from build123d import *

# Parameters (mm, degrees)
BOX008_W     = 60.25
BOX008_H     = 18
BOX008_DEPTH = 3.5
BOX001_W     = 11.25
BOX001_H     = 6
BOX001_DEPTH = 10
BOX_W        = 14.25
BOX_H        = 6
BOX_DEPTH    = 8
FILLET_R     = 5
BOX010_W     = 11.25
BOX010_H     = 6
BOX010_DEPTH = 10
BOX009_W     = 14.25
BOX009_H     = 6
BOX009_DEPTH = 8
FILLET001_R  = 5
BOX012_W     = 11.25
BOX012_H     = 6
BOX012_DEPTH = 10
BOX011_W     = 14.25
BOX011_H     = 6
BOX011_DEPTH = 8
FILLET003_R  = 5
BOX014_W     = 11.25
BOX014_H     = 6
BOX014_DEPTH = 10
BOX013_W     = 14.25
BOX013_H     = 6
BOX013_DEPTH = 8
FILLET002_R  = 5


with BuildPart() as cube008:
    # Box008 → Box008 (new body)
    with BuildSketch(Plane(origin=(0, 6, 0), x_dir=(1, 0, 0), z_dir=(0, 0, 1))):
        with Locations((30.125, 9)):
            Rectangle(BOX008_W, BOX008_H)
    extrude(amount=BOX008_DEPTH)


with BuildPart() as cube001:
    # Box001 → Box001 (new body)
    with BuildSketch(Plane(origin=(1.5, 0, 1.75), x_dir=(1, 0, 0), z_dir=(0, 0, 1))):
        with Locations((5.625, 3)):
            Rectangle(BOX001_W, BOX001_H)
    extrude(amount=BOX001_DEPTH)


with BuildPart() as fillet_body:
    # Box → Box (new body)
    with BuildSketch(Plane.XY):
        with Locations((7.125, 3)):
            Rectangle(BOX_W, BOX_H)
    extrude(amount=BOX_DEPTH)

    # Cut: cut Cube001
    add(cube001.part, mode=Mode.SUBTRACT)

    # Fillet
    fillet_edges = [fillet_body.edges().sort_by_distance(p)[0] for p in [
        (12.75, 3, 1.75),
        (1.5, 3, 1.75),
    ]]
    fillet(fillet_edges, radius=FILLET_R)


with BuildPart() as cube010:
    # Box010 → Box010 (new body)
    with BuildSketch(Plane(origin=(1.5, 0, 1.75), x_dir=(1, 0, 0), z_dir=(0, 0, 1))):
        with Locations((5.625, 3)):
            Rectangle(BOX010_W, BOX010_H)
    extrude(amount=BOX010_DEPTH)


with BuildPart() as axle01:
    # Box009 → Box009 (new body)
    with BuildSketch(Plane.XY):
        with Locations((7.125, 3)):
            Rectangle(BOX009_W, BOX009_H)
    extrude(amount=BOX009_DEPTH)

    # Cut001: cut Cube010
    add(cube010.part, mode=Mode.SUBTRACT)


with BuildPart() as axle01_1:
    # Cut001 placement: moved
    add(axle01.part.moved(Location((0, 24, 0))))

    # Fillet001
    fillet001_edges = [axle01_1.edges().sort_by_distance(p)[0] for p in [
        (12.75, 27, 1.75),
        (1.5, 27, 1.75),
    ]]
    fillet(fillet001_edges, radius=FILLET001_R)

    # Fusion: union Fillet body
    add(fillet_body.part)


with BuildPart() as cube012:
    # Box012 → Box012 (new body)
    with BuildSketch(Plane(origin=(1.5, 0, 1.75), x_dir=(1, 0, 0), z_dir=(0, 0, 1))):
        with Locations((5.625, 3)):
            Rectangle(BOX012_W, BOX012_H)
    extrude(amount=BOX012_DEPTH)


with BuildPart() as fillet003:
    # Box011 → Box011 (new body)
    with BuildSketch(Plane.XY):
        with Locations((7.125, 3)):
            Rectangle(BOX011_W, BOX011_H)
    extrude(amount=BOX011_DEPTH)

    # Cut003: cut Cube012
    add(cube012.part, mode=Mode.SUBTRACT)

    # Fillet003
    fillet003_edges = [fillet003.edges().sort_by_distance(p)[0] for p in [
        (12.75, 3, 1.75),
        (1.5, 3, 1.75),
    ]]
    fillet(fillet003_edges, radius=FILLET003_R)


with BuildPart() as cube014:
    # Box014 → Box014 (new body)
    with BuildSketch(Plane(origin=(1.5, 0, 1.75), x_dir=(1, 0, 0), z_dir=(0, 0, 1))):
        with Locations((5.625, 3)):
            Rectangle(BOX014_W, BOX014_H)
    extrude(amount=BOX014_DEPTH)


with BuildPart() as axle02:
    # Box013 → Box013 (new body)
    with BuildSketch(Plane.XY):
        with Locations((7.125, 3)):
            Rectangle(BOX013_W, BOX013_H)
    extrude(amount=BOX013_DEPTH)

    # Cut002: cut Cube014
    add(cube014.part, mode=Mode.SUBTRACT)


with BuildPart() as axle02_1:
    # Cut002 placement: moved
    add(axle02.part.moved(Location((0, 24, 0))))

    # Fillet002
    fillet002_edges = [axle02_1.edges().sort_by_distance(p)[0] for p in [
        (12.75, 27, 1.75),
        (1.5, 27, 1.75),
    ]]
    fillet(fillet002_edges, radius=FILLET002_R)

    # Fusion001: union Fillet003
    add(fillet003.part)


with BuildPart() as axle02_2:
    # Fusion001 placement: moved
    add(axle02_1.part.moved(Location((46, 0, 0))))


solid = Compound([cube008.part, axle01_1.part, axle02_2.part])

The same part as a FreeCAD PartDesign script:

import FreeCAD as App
import Part
import Sketcher
from FreeCAD import Vector


def edges_at(feature, points):
    """Names of the edges that pass closest to the given points."""
    edges = feature.Shape.Edges
    near = lambda p: min(range(len(edges)), key=lambda i: edges[i].distToShape(Part.Vertex(*p))[0])
    return sorted({f"Edge{near(p) + 1}" for p in points})

doc = App.newDocument("Part")
body = doc.addObject("PartDesign::Body", "Body")

# Sketch on XY plane
sketch1 = body.newObject("Sketcher::SketchObject", "Sketch")
sketch1.AttachmentSupport = (doc.getObject("XY_Plane"), [""])
sketch1.MapMode = "FlatFace"
sketch1.addGeometry(Part.LineSegment(Vector(0, 24, 0), Vector(0, 6, 0)), False)
sketch1.addGeometry(Part.LineSegment(Vector(0, 6, 0), Vector(60, 6, 0)), False)
sketch1.addGeometry(Part.LineSegment(Vector(60, 6, 0), Vector(60, 24, 0)), False)
sketch1.addGeometry(Part.LineSegment(Vector(60, 24, 0), Vector(0, 24, 0)), False)
sketch1.addConstraint(Sketcher.Constraint("Coincident", 0, 2, 1, 1))
sketch1.addConstraint(Sketcher.Constraint("Coincident", 1, 2, 2, 1))
sketch1.addConstraint(Sketcher.Constraint("Coincident", 2, 2, 3, 1))
sketch1.addConstraint(Sketcher.Constraint("Coincident", 3, 2, 0, 1))
sketch1.addConstraint(Sketcher.Constraint("Vertical", 0))
sketch1.addConstraint(Sketcher.Constraint("Horizontal", 1))
sketch1.addConstraint(Sketcher.Constraint("Vertical", 2))
sketch1.addConstraint(Sketcher.Constraint("Horizontal", 3))
sketch1.addConstraint(Sketcher.Constraint("PointOnObject", 0, 2, -2))
sketch1.addConstraint(Sketcher.Constraint("DistanceY", 0, 2, 0, 1, 18.0))
sketch1.addConstraint(Sketcher.Constraint("DistanceY", -1, 1, 0, 2, 6.0))
sketch1.addConstraint(Sketcher.Constraint("DistanceX", 1, 1, 1, 2, 60.25))
pad1 = body.newObject("PartDesign::Pad", "Pad")
pad1.Profile = sketch1
pad1.Length = 3.5
body2 = doc.addObject("PartDesign::Body", "Body001")

# Sketch on XY plane
sketch2 = body2.newObject("Sketcher::SketchObject", "Sketch001")
sketch2.AttachmentSupport = (doc.getObject("XY_Plane001"), [""])
sketch2.MapMode = "FlatFace"
sketch2.AttachmentOffset = App.Placement(Vector(0, 0, 1.75), App.Rotation())
sketch2.addGeometry(Part.LineSegment(Vector(2, 6, 0), Vector(2, 0, 0)), False)
sketch2.addGeometry(Part.LineSegment(Vector(2, 0, 0), Vector(13, 0, 0)), False)
sketch2.addGeometry(Part.LineSegment(Vector(13, 0, 0), Vector(13, 6, 0)), False)
sketch2.addGeometry(Part.LineSegment(Vector(13, 6, 0), Vector(2, 6, 0)), False)
sketch2.addConstraint(Sketcher.Constraint("Coincident", 0, 2, 1, 1))
sketch2.addConstraint(Sketcher.Constraint("Coincident", 1, 2, 2, 1))
sketch2.addConstraint(Sketcher.Constraint("Coincident", 2, 2, 3, 1))
sketch2.addConstraint(Sketcher.Constraint("Coincident", 3, 2, 0, 1))
sketch2.addConstraint(Sketcher.Constraint("Vertical", 0))
sketch2.addConstraint(Sketcher.Constraint("Horizontal", 1))
sketch2.addConstraint(Sketcher.Constraint("Vertical", 2))
sketch2.addConstraint(Sketcher.Constraint("Horizontal", 3))
sketch2.addConstraint(Sketcher.Constraint("PointOnObject", 0, 2, -1))
sketch2.addConstraint(Sketcher.Constraint("DistanceY", 0, 2, 0, 1, 6.0))
sketch2.addConstraint(Sketcher.Constraint("DistanceX", 1, 1, 1, 2, 11.25))
sketch2.addConstraint(Sketcher.Constraint("DistanceX", -1, 1, 0, 2, 1.5))
pad2 = body2.newObject("PartDesign::Pad", "Pad001")
pad2.Profile = sketch2
pad2.Length = 10
body3 = doc.addObject("PartDesign::Body", "Body002")

# Sketch on XY plane
sketch3 = body3.newObject("Sketcher::SketchObject", "Sketch002")
sketch3.AttachmentSupport = (doc.getObject("XY_Plane002"), [""])
sketch3.MapMode = "FlatFace"
sketch3.addGeometry(Part.LineSegment(Vector(0, 6, 0), Vector(0, 0, 0)), False)
sketch3.addGeometry(Part.LineSegment(Vector(0, 0, 0), Vector(14, 0, 0)), False)
sketch3.addGeometry(Part.LineSegment(Vector(14, 0, 0), Vector(14, 6, 0)), False)
sketch3.addGeometry(Part.LineSegment(Vector(14, 6, 0), Vector(0, 6, 0)), False)
sketch3.addConstraint(Sketcher.Constraint("Coincident", 0, 2, 1, 1))
sketch3.addConstraint(Sketcher.Constraint("Coincident", 1, 2, 2, 1))
sketch3.addConstraint(Sketcher.Constraint("Coincident", 2, 2, 3, 1))
sketch3.addConstraint(Sketcher.Constraint("Coincident", 3, 2, 0, 1))
sketch3.addConstraint(Sketcher.Constraint("Vertical", 0))
sketch3.addConstraint(Sketcher.Constraint("Horizontal", 1))
sketch3.addConstraint(Sketcher.Constraint("Vertical", 2))
sketch3.addConstraint(Sketcher.Constraint("Horizontal", 3))
sketch3.addConstraint(Sketcher.Constraint("Coincident", 0, 2, -1, 1))
sketch3.addConstraint(Sketcher.Constraint("DistanceY", 0, 2, 0, 1, 6.0))
sketch3.addConstraint(Sketcher.Constraint("DistanceX", 1, 1, 1, 2, 14.25))
pad3 = body3.newObject("PartDesign::Pad", "Pad002")
pad3.Profile = sketch3
pad3.Length = 8
doc.recompute()

boolean = body3.newObject("PartDesign::Boolean", "Boolean")
boolean.Type = "Cut"
boolean.addObjects([body2])
doc.recompute()

fillet = body3.newObject("PartDesign::Fillet", "Fillet")
fillet.Base = (boolean, edges_at(boolean, [(12.75, 3, 1.75), (1.5, 3, 1.75)]))
fillet.Radius = 5
body4 = doc.addObject("PartDesign::Body", "Body003")

# Sketch on XY plane
sketch4 = body4.newObject("Sketcher::SketchObject", "Sketch003")
sketch4.AttachmentSupport = (doc.getObject("XY_Plane003"), [""])
sketch4.MapMode = "FlatFace"
sketch4.AttachmentOffset = App.Placement(Vector(0, 0, 1.75), App.Rotation())
sketch4.addGeometry(Part.LineSegment(Vector(2, 6, 0), Vector(2, 0, 0)), False)
sketch4.addGeometry(Part.LineSegment(Vector(2, 0, 0), Vector(13, 0, 0)), False)
sketch4.addGeometry(Part.LineSegment(Vector(13, 0, 0), Vector(13, 6, 0)), False)
sketch4.addGeometry(Part.LineSegment(Vector(13, 6, 0), Vector(2, 6, 0)), False)
sketch4.addConstraint(Sketcher.Constraint("Coincident", 0, 2, 1, 1))
sketch4.addConstraint(Sketcher.Constraint("Coincident", 1, 2, 2, 1))
sketch4.addConstraint(Sketcher.Constraint("Coincident", 2, 2, 3, 1))
sketch4.addConstraint(Sketcher.Constraint("Coincident", 3, 2, 0, 1))
sketch4.addConstraint(Sketcher.Constraint("Vertical", 0))
sketch4.addConstraint(Sketcher.Constraint("Horizontal", 1))
sketch4.addConstraint(Sketcher.Constraint("Vertical", 2))
sketch4.addConstraint(Sketcher.Constraint("Horizontal", 3))
sketch4.addConstraint(Sketcher.Constraint("PointOnObject", 0, 2, -1))
sketch4.addConstraint(Sketcher.Constraint("DistanceY", 0, 2, 0, 1, 6.0))
sketch4.addConstraint(Sketcher.Constraint("DistanceX", 1, 1, 1, 2, 11.25))
sketch4.addConstraint(Sketcher.Constraint("DistanceX", -1, 1, 0, 2, 1.5))
pad4 = body4.newObject("PartDesign::Pad", "Pad003")
pad4.Profile = sketch4
pad4.Length = 10
body5 = doc.addObject("PartDesign::Body", "Body004")

# Sketch on XY plane
sketch5 = body5.newObject("Sketcher::SketchObject", "Sketch004")
sketch5.AttachmentSupport = (doc.getObject("XY_Plane004"), [""])
sketch5.MapMode = "FlatFace"
sketch5.addGeometry(Part.LineSegment(Vector(0, 6, 0), Vector(0, 0, 0)), False)
sketch5.addGeometry(Part.LineSegment(Vector(0, 0, 0), Vector(14, 0, 0)), False)
sketch5.addGeometry(Part.LineSegment(Vector(14, 0, 0), Vector(14, 6, 0)), False)
sketch5.addGeometry(Part.LineSegment(Vector(14, 6, 0), Vector(0, 6, 0)), False)
sketch5.addConstraint(Sketcher.Constraint("Coincident", 0, 2, 1, 1))
sketch5.addConstraint(Sketcher.Constraint("Coincident", 1, 2, 2, 1))
sketch5.addConstraint(Sketcher.Constraint("Coincident", 2, 2, 3, 1))
sketch5.addConstraint(Sketcher.Constraint("Coincident", 3, 2, 0, 1))
sketch5.addConstraint(Sketcher.Constraint("Vertical", 0))
sketch5.addConstraint(Sketcher.Constraint("Horizontal", 1))
sketch5.addConstraint(Sketcher.Constraint("Vertical", 2))
sketch5.addConstraint(Sketcher.Constraint("Horizontal", 3))
sketch5.addConstraint(Sketcher.Constraint("Coincident", 0, 2, -1, 1))
sketch5.addConstraint(Sketcher.Constraint("DistanceY", 0, 2, 0, 1, 6.0))
sketch5.addConstraint(Sketcher.Constraint("DistanceX", 1, 1, 1, 2, 14.25))
pad5 = body5.newObject("PartDesign::Pad", "Pad004")
pad5.Profile = sketch5
pad5.Length = 8
doc.recompute()

boolean2 = body5.newObject("PartDesign::Boolean", "Boolean001")
boolean2.Type = "Cut"
boolean2.addObjects([body4])
body6 = doc.addObject("PartDesign::Body", "Body005")
body6.AllowCompound = True
doc.recompute()

body5.Placement = App.Placement(Vector(0, 24, 0), App.Rotation(Vector(0, 0, 1), 0))
boolean3 = body6.newObject("PartDesign::Boolean", "Boolean002")
boolean3.Type = "Fuse"
boolean3.addObjects([body5])
doc.recompute()

fillet2 = body6.newObject("PartDesign::Fillet", "Fillet001")
fillet2.Base = (boolean3, edges_at(boolean3, [(12.75, 27, 1.75), (1.5, 27, 1.75)]))
fillet2.Radius = 5
doc.recompute()

boolean4 = body6.newObject("PartDesign::Boolean", "Boolean003")
boolean4.Type = "Fuse"
boolean4.addObjects([body3])
body7 = doc.addObject("PartDesign::Body", "Body006")

# Sketch on XY plane
sketch6 = body7.newObject("Sketcher::SketchObject", "Sketch005")
sketch6.AttachmentSupport = (doc.getObject("XY_Plane006"), [""])
sketch6.MapMode = "FlatFace"
sketch6.AttachmentOffset = App.Placement(Vector(0, 0, 1.75), App.Rotation())
sketch6.addGeometry(Part.LineSegment(Vector(2, 6, 0), Vector(2, 0, 0)), False)
sketch6.addGeometry(Part.LineSegment(Vector(2, 0, 0), Vector(13, 0, 0)), False)
sketch6.addGeometry(Part.LineSegment(Vector(13, 0, 0), Vector(13, 6, 0)), False)
sketch6.addGeometry(Part.LineSegment(Vector(13, 6, 0), Vector(2, 6, 0)), False)
sketch6.addConstraint(Sketcher.Constraint("Coincident", 0, 2, 1, 1))
sketch6.addConstraint(Sketcher.Constraint("Coincident", 1, 2, 2, 1))
sketch6.addConstraint(Sketcher.Constraint("Coincident", 2, 2, 3, 1))
sketch6.addConstraint(Sketcher.Constraint("Coincident", 3, 2, 0, 1))
sketch6.addConstraint(Sketcher.Constraint("Vertical", 0))
sketch6.addConstraint(Sketcher.Constraint("Horizontal", 1))
sketch6.addConstraint(Sketcher.Constraint("Vertical", 2))
sketch6.addConstraint(Sketcher.Constraint("Horizontal", 3))
sketch6.addConstraint(Sketcher.Constraint("PointOnObject", 0, 2, -1))
sketch6.addConstraint(Sketcher.Constraint("DistanceY", 0, 2, 0, 1, 6.0))
sketch6.addConstraint(Sketcher.Constraint("DistanceX", 1, 1, 1, 2, 11.25))
sketch6.addConstraint(Sketcher.Constraint("DistanceX", -1, 1, 0, 2, 1.5))
pad6 = body7.newObject("PartDesign::Pad", "Pad005")
pad6.Profile = sketch6
pad6.Length = 10
body8 = doc.addObject("PartDesign::Body", "Body007")

# Sketch on XY plane
sketch7 = body8.newObject("Sketcher::SketchObject", "Sketch006")
sketch7.AttachmentSupport = (doc.getObject("XY_Plane007"), [""])
sketch7.MapMode = "FlatFace"
sketch7.addGeometry(Part.LineSegment(Vector(0, 6, 0), Vector(0, 0, 0)), False)
sketch7.addGeometry(Part.LineSegment(Vector(0, 0, 0), Vector(14, 0, 0)), False)
sketch7.addGeometry(Part.LineSegment(Vector(14, 0, 0), Vector(14, 6, 0)), False)
sketch7.addGeometry(Part.LineSegment(Vector(14, 6, 0), Vector(0, 6, 0)), False)
sketch7.addConstraint(Sketcher.Constraint("Coincident", 0, 2, 1, 1))
sketch7.addConstraint(Sketcher.Constraint("Coincident", 1, 2, 2, 1))
sketch7.addConstraint(Sketcher.Constraint("Coincident", 2, 2, 3, 1))
sketch7.addConstraint(Sketcher.Constraint("Coincident", 3, 2, 0, 1))
sketch7.addConstraint(Sketcher.Constraint("Vertical", 0))
sketch7.addConstraint(Sketcher.Constraint("Horizontal", 1))
sketch7.addConstraint(Sketcher.Constraint("Vertical", 2))
sketch7.addConstraint(Sketcher.Constraint("Horizontal", 3))
sketch7.addConstraint(Sketcher.Constraint("Coincident", 0, 2, -1, 1))
sketch7.addConstraint(Sketcher.Constraint("DistanceY", 0, 2, 0, 1, 6.0))
sketch7.addConstraint(Sketcher.Constraint("DistanceX", 1, 1, 1, 2, 14.25))
pad7 = body8.newObject("PartDesign::Pad", "Pad006")
pad7.Profile = sketch7
pad7.Length = 8
doc.recompute()

boolean5 = body8.newObject("PartDesign::Boolean", "Boolean004")
boolean5.Type = "Cut"
boolean5.addObjects([body7])
doc.recompute()

fillet3 = body8.newObject("PartDesign::Fillet", "Fillet002")
fillet3.Base = (boolean5, edges_at(boolean5, [(12.75, 3, 1.75), (1.5, 3, 1.75)]))
fillet3.Radius = 5
body9 = doc.addObject("PartDesign::Body", "Body008")

# Sketch on XY plane
sketch8 = body9.newObject("Sketcher::SketchObject", "Sketch007")
sketch8.AttachmentSupport = (doc.getObject("XY_Plane008"), [""])
sketch8.MapMode = "FlatFace"
sketch8.AttachmentOffset = App.Placement(Vector(0, 0, 1.75), App.Rotation())
sketch8.addGeometry(Part.LineSegment(Vector(2, 6, 0), Vector(2, 0, 0)), False)
sketch8.addGeometry(Part.LineSegment(Vector(2, 0, 0), Vector(13, 0, 0)), False)
sketch8.addGeometry(Part.LineSegment(Vector(13, 0, 0), Vector(13, 6, 0)), False)
sketch8.addGeometry(Part.LineSegment(Vector(13, 6, 0), Vector(2, 6, 0)), False)
sketch8.addConstraint(Sketcher.Constraint("Coincident", 0, 2, 1, 1))
sketch8.addConstraint(Sketcher.Constraint("Coincident", 1, 2, 2, 1))
sketch8.addConstraint(Sketcher.Constraint("Coincident", 2, 2, 3, 1))
sketch8.addConstraint(Sketcher.Constraint("Coincident", 3, 2, 0, 1))
sketch8.addConstraint(Sketcher.Constraint("Vertical", 0))
sketch8.addConstraint(Sketcher.Constraint("Horizontal", 1))
sketch8.addConstraint(Sketcher.Constraint("Vertical", 2))
sketch8.addConstraint(Sketcher.Constraint("Horizontal", 3))
sketch8.addConstraint(Sketcher.Constraint("PointOnObject", 0, 2, -1))
sketch8.addConstraint(Sketcher.Constraint("DistanceY", 0, 2, 0, 1, 6.0))
sketch8.addConstraint(Sketcher.Constraint("DistanceX", 1, 1, 1, 2, 11.25))
sketch8.addConstraint(Sketcher.Constraint("DistanceX", -1, 1, 0, 2, 1.5))
pad8 = body9.newObject("PartDesign::Pad", "Pad007")
pad8.Profile = sketch8
pad8.Length = 10
body10 = doc.addObject("PartDesign::Body", "Body009")

# Sketch on XY plane
sketch9 = body10.newObject("Sketcher::SketchObject", "Sketch008")
sketch9.AttachmentSupport = (doc.getObject("XY_Plane009"), [""])
sketch9.MapMode = "FlatFace"
sketch9.addGeometry(Part.LineSegment(Vector(0, 6, 0), Vector(0, 0, 0)), False)
sketch9.addGeometry(Part.LineSegment(Vector(0, 0, 0), Vector(14, 0, 0)), False)
sketch9.addGeometry(Part.LineSegment(Vector(14, 0, 0), Vector(14, 6, 0)), False)
sketch9.addGeometry(Part.LineSegment(Vector(14, 6, 0), Vector(0, 6, 0)), False)
sketch9.addConstraint(Sketcher.Constraint("Coincident", 0, 2, 1, 1))
sketch9.addConstraint(Sketcher.Constraint("Coincident", 1, 2, 2, 1))
sketch9.addConstraint(Sketcher.Constraint("Coincident", 2, 2, 3, 1))
sketch9.addConstraint(Sketcher.Constraint("Coincident", 3, 2, 0, 1))
sketch9.addConstraint(Sketcher.Constraint("Vertical", 0))
sketch9.addConstraint(Sketcher.Constraint("Horizontal", 1))
sketch9.addConstraint(Sketcher.Constraint("Vertical", 2))
sketch9.addConstraint(Sketcher.Constraint("Horizontal", 3))
sketch9.addConstraint(Sketcher.Constraint("Coincident", 0, 2, -1, 1))
sketch9.addConstraint(Sketcher.Constraint("DistanceY", 0, 2, 0, 1, 6.0))
sketch9.addConstraint(Sketcher.Constraint("DistanceX", 1, 1, 1, 2, 14.25))
pad9 = body10.newObject("PartDesign::Pad", "Pad008")
pad9.Profile = sketch9
pad9.Length = 8
doc.recompute()

boolean6 = body10.newObject("PartDesign::Boolean", "Boolean005")
boolean6.Type = "Cut"
boolean6.addObjects([body9])
body11 = doc.addObject("PartDesign::Body", "Body010")
body11.AllowCompound = True
doc.recompute()

body10.Placement = App.Placement(Vector(0, 24, 0), App.Rotation(Vector(0, 0, 1), 0))
boolean7 = body11.newObject("PartDesign::Boolean", "Boolean006")
boolean7.Type = "Fuse"
boolean7.addObjects([body10])
doc.recompute()

fillet4 = body11.newObject("PartDesign::Fillet", "Fillet003")
fillet4.Base = (boolean7, edges_at(boolean7, [(12.75, 27, 1.75), (1.5, 27, 1.75)]))
fillet4.Radius = 5
doc.recompute()

boolean8 = body11.newObject("PartDesign::Boolean", "Boolean007")
boolean8.Type = "Fuse"
boolean8.addObjects([body8])
body12 = doc.addObject("PartDesign::Body", "Body011")
body12.AllowCompound = True
doc.recompute()

body11.Placement = App.Placement(Vector(46, 0, 0), App.Rotation(Vector(0, 0, 1), 0))
boolean9 = body12.newObject("PartDesign::Boolean", "Boolean008")
boolean9.Type = "Fuse"
boolean9.addObjects([body11])

doc.recompute()
